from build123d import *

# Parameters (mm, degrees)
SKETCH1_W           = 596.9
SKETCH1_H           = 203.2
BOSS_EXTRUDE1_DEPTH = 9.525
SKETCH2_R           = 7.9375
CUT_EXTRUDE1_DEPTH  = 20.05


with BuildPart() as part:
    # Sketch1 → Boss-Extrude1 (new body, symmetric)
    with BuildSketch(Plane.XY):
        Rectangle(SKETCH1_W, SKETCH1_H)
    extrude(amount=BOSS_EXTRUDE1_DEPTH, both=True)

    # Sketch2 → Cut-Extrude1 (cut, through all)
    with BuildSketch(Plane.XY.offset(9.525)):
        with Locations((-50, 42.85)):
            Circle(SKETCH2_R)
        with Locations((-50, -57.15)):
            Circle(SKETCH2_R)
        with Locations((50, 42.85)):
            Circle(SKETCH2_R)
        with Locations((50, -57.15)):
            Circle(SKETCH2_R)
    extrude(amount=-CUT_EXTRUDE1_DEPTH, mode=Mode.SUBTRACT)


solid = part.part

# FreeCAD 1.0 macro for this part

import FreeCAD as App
import Part
import Sketcher
from FreeCAD import Vector
Q = App.Units.Quantity


def add_polygon(sketch, points):
    """Adds a closed chain of lines whose ends are joined by coincident constraints."""
    first, n = sketch.GeometryCount, len(points)
    for a, b in zip(points, points[1:] + points[:1]):
        sketch.addGeometry(Part.LineSegment(App.Vector(*a, 0), App.Vector(*b, 0)), False)
    for i in range(n):
        sketch.addConstraint(Sketcher.Constraint("Coincident", first + i, 2, first + (i + 1) % n, 1))

doc = App.newDocument("Part")
params = doc.addObject("Spreadsheet::Sheet", "Params")
for row, (alias, value) in enumerate([
    ("sketch1_height", "8 in"),
    ("sketch1_width", "23.5 in"),
    ("pad1_length", "0.75 in"),
    ("sketch2_diameter", "0.625 in"),
], start=1):
    params.set(f"A{row}", alias)
    params.set(f"B{row}", "=" + value)
    params.setAlias(f"B{row}", alias)

body = doc.addObject("PartDesign::Body", "Body")

# Sketch on XY plane
sketch1 = body.newObject("Sketcher::SketchObject", "Sketch")
sketch1.AttachmentSupport = (doc.getObject("XY_Plane"), [""])
sketch1.MapMode = "FlatFace"
add_polygon(sketch1, [(-298.45, 101.6), (-298.45, -101.6), (298.45, -101.6), (298.45, 101.6)])  # lines 0-3
sketch1.addConstraint([
    Sketcher.Constraint("Vertical", 0),
    Sketcher.Constraint("Horizontal", 1),
    Sketcher.Constraint("Vertical", 2),
    Sketcher.Constraint("Horizontal", 3),
    Sketcher.Constraint("Symmetric", 0, 2, 2, 2, -1, 1),
    Sketcher.Constraint("DistanceY", 0, 2, 0, 1, Q("8 in")),
    Sketcher.Constraint("DistanceX", 1, 1, 1, 2, Q("23.5 in")),
])
sketch1.setExpression("Constraints[9]", "Params.sketch1_height")
sketch1.setExpression("Constraints[10]", "Params.sketch1_width")
pad1 = body.newObject("PartDesign::Pad", "Pad")
pad1.Profile = sketch1
pad1.setExpression("Length", "Params.pad1_length")
pad1.Midplane = True

# Sketch on XY plane
sketch2 = body.newObject("Sketcher::SketchObject", "Sketch001")
sketch2.AttachmentSupport = (doc.getObject("XY_Plane"), [""])
sketch2.MapMode = "FlatFace"
sketch2.AttachmentOffset = App.Placement(Vector(0, 0, 0.375 * 25.4), App.Rotation())
sketch2.addGeometry([
    Part.Circle(Vector(-50, 42.85, 0), Vector(0, 0, 1), 7.9375),
    Part.Circle(Vector(-50, -57.15, 0), Vector(0, 0, 1), 7.9375),
    Part.Circle(Vector(50, 42.85, 0), Vector(0, 0, 1), 7.9375),
    Part.Circle(Vector(50, -57.15, 0), Vector(0, 0, 1), 7.9375),
], False)
sketch2.addConstraint([
    Sketcher.Constraint("Equal", 0, 1),
    Sketcher.Constraint("Equal", 1, 2),
    Sketcher.Constraint("Equal", 2, 3),
    Sketcher.Constraint("Symmetric", 0, 3, 2, 3, -2),
    Sketcher.Constraint("Symmetric", 1, 3, 3, 3, -2),
    Sketcher.Constraint("Vertical", 0, 3, 1, 3),
    Sketcher.Constraint("Diameter", 0, Q("0.625 in")),
    Sketcher.Constraint("DistanceY", 1, 3, -1, 1, Q("2.25 in")),
    Sketcher.Constraint("DistanceX", 0, 3, -1, 1, 50.0),
    Sketcher.Constraint("DistanceY", -1, 1, 0, 3, 42.85),
])
sketch2.setExpression("Constraints[6]", "Params.sketch2_diameter")
pocket1 = body.newObject("PartDesign::Pocket", "Pocket")
pocket1.Profile = sketch2
pocket1.Type = "ThroughAll"

doc.recompute()
